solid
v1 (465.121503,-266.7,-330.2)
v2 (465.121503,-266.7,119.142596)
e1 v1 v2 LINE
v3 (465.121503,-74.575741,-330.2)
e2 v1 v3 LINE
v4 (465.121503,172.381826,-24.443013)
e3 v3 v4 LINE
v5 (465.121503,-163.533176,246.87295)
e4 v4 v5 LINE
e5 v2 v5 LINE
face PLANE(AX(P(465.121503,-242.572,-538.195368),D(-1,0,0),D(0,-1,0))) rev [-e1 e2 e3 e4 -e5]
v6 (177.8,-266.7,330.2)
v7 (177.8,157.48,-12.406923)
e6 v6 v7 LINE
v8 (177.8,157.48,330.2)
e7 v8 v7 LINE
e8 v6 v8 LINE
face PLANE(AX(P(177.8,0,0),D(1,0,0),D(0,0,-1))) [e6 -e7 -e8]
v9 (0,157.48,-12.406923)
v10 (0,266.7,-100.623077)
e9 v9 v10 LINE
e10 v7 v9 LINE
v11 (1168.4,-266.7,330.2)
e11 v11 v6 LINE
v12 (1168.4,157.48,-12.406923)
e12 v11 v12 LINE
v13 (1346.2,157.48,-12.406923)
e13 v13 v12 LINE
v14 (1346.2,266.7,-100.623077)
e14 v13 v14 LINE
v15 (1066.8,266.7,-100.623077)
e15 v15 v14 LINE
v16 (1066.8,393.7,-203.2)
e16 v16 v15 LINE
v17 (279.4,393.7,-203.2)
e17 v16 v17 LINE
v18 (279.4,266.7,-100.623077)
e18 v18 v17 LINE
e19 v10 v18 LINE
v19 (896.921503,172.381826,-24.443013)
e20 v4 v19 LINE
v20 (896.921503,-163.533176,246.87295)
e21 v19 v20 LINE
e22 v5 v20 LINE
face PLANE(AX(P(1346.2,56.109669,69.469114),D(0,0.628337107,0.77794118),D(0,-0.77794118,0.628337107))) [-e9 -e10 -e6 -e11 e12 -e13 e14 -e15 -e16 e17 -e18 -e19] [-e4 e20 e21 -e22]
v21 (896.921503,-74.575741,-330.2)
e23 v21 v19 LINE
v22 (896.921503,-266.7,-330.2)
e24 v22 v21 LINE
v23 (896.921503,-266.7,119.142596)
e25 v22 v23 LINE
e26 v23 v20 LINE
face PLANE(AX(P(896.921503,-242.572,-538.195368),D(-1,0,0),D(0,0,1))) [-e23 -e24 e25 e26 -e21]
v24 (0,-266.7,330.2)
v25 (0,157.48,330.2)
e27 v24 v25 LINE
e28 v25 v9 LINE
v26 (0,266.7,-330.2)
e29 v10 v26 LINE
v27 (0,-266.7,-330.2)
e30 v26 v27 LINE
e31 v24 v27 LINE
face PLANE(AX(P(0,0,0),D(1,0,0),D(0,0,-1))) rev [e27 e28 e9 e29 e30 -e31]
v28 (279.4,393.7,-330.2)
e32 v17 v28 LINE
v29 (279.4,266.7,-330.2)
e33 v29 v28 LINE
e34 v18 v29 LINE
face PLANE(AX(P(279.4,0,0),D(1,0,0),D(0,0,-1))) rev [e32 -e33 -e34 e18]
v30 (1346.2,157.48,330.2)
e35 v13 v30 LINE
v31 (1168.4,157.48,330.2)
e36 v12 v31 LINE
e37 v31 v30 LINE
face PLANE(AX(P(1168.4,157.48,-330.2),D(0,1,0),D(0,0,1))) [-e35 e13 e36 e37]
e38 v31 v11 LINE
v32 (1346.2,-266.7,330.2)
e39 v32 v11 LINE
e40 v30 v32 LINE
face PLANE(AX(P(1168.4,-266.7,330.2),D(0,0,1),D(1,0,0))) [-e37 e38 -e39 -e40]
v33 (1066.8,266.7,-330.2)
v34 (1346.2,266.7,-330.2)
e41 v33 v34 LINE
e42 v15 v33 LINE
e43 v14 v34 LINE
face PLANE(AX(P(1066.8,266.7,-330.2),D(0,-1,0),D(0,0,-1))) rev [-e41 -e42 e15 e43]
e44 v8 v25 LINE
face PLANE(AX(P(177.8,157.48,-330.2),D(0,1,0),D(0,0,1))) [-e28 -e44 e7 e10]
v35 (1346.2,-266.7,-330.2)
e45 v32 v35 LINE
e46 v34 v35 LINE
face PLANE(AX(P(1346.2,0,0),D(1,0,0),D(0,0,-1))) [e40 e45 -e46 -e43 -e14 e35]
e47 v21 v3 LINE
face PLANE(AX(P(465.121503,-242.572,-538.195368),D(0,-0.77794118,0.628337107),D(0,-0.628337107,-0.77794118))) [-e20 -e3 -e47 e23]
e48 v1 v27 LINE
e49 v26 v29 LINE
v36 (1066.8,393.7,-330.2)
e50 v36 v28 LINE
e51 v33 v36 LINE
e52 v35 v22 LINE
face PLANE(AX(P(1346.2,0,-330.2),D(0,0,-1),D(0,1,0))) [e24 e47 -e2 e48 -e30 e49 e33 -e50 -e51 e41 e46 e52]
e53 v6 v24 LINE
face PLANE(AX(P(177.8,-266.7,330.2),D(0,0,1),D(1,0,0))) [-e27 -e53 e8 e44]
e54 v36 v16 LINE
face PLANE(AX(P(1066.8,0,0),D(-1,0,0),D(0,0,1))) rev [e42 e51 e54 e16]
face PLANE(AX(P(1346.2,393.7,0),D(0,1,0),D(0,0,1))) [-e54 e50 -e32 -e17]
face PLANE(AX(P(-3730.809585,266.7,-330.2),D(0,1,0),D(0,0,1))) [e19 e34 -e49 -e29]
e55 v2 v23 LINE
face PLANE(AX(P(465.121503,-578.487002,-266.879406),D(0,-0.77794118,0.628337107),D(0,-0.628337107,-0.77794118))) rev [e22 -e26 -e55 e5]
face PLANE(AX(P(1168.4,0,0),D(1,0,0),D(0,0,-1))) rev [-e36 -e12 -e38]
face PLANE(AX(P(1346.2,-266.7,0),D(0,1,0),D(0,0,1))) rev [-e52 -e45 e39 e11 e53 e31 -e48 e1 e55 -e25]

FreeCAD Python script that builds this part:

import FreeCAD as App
import Part
import Sketcher
from FreeCAD import Vector
Q = App.Units.Quantity

doc = App.newDocument("Part")
params = doc.addObject("Spreadsheet::Sheet", "Params")
for row, (alias, value) in enumerate([
    ("sketch1_width", "26 in"),
    ("sketch1_height", "5 in"),
    ("pad1_length", "53 in"),
    ("sketch2_width", "5 in"),
    ("pocket1_length", "11 in"),
    ("pocket2_length", "1441.932396 mm"),
    ("pocket2_length2", "11 in"),
    ("sketch4_height", "26 in"),
    ("sketch4_width", "16.7 in"),
    ("pad2_length", "7 in"),
    ("sketch5_height", "26 in"),
    ("sketch5_width", "16.7 in"),
    ("pad3_length", "7 in"),
    ("sketch6_width", "17 in"),
    ("pocket3_length", "26 in"),
], start=1):
    params.set(f"A{row}", alias)
    params.set(f"B{row}", "=" + value)
    params.setAlias(f"B{row}", alias)

body = doc.addObject("PartDesign::Body", "Body")

sketch1 = doc.addObject("Sketcher::SketchObject", "Sketch")
body.addObject(sketch1)
sketch1.AttachmentSupport = (doc.YZ_Plane, [""])
sketch1.MapMode = "FlatFace"
sketch1.addGeometry(Part.LineSegment(Vector(-266.7, 330.2, 0), Vector(-266.7, -330.2, 0)), False)
sketch1.addGeometry(Part.LineSegment(Vector(-266.7, -330.2, 0), Vector(393.7, -330.2, 0)), False)
sketch1.addGeometry(Part.LineSegment(Vector(393.7, -330.2, 0), Vector(393.7, -203.2, 0)), False)
sketch1.addGeometry(Part.LineSegment(Vector(393.7, -203.2, 0), Vector(-266.7, 330.2, 0)), False)
sketch1.addConstraint(Sketcher.Constraint("Coincident", 0, 2, 1, 1))
sketch1.addConstraint(Sketcher.Constraint("Coincident", 1, 2, 2, 1))
sketch1.addConstraint(Sketcher.Constraint("Coincident", 2, 2, 3, 1))
sketch1.addConstraint(Sketcher.Constraint("Coincident", 3, 2, 0, 1))
sketch1.addConstraint(Sketcher.Constraint("Vertical", 0))
sketch1.addConstraint(Sketcher.Constraint("Horizontal", 1))
sketch1.addConstraint(Sketcher.Constraint("Vertical", 2))
sketch1.addConstraint(Sketcher.Constraint("Equal", 1, 0))
sketch1.addConstraint(Sketcher.Constraint("DistanceX", 1, 1, 1, 2, Q("26 in")))
sketch1.addConstraint(Sketcher.Constraint("DistanceY", 2, 1, 2, 2, Q("5 in")))
sketch1.addConstraint(Sketcher.Constraint("DistanceY", 0, 2, -1, 1, Q("13 in")))
sketch1.addConstraint(Sketcher.Constraint("DistanceX", 0, 2, -1, 1, Q("10.5 in")))
sketch1.setExpression("Constraints[8]", "Params.sketch1_width")
sketch1.setExpression("Constraints[9]", "Params.sketch1_height")
pad1 = doc.addObject("PartDesign::Pad", "Pad")
body.addObject(pad1)
pad1.Profile = sketch1
pad1.setExpression("Length", "Params.pad1_length")

sketch2 = doc.addObject("Sketcher::SketchObject", "Sketch001")
body.addObject(sketch2)
sketch2.AttachmentSupport = (doc.YZ_Plane, [""])
sketch2.MapMode = "FlatFace"
sketch2.AttachmentOffset = App.Placement(Vector(0, 0, 53 * 25.4), App.Rotation())
sketch2.addGeometry(Part.LineSegment(Vector(266.7, -330.2, 0), Vector(393.7, -330.2, 0)), False)
sketch2.addGeometry(Part.LineSegment(Vector(393.7, -330.2, 0), Vector(393.7, -203.2, 0)), False)
sketch2.addGeometry(Part.LineSegment(Vector(393.7, -203.2, 0), Vector(266.7, -100.623077, 0)), False)
sketch2.addGeometry(Part.LineSegment(Vector(266.7, -100.623077, 0), Vector(266.7, -330.2, 0)), False)
sketch2.addConstraint(Sketcher.Constraint("Coincident", 0, 2, 1, 1))
sketch2.addConstraint(Sketcher.Constraint("Coincident", 1, 2, 2, 1))
sketch2.addConstraint(Sketcher.Constraint("Coincident", 2, 2, 3, 1))
sketch2.addConstraint(Sketcher.Constraint("Coincident", 3, 2, 0, 1))
sketch2.addConstraint(Sketcher.Constraint("Horizontal", 0))
sketch2.addConstraint(Sketcher.Constraint("Vertical", 1))
sketch2.addConstraint(Sketcher.Constraint("Vertical", 3))
sketch2.addConstraint(Sketcher.Constraint("Equal", 0, 1))
sketch2.addConstraint(Sketcher.Constraint("DistanceX", 0, 1, 0, 2, Q("5 in")))
sketch2.addConstraint(Sketcher.Constraint("DistanceY", 0, 2, -1, 1, Q("13 in")))
sketch2.addConstraint(Sketcher.Constraint("DistanceX", -1, 1, 0, 2, Q("15.5 in")))
sketch2.addConstraint(Sketcher.Constraint("DistanceY", 3, 2, 3, 1, 229.576923))
sketch2.setExpression("Constraints[8]", "Params.sketch2_width")
pocket1 = doc.addObject("PartDesign::Pocket", "Pocket")
body.addObject(pocket1)
pocket1.Profile = sketch2
pocket1.setExpression("Length", "Params.pocket1_length")

sketch3 = doc.addObject("Sketcher::SketchObject", "Sketch002")
body.addObject(sketch3)
sketch3.AttachmentSupport = (doc.YZ_Plane, [""])
sketch3.MapMode = "FlatFace"
sketch3.addGeometry(Part.LineSegment(Vector(2271.593273, -330.2, 0), Vector(266.7, -330.2, 0)), False)
sketch3.addGeometry(Part.LineSegment(Vector(266.7, -330.2, 0), Vector(266.7, 1777.270196, 0)), False)
sketch3.addGeometry(Part.LineSegment(Vector(266.7, 1777.270196, 0), Vector(2987.839371, 4365.963517, 0)), False)
sketch3.addGeometry(Part.LineSegment(Vector(2987.839371, 4365.963517, 0), Vector(4992.732644, 2258.49332, 0)), False)
sketch3.addGeometry(Part.LineSegment(Vector(4992.732644, 2258.49332, 0), Vector(2271.593273, -330.2, 0)), False)
sketch3.addConstraint(Sketcher.Constraint("Coincident", 0, 2, 1, 1))
sketch3.addConstraint(Sketcher.Constraint("Coincident", 1, 2, 2, 1))
sketch3.addConstraint(Sketcher.Constraint("Coincident", 2, 2, 3, 1))
sketch3.addConstraint(Sketcher.Constraint("Coincident", 3, 2, 4, 1))
sketch3.addConstraint(Sketcher.Constraint("Coincident", 4, 2, 0, 1))
sketch3.addConstraint(Sketcher.Constraint("Horizontal", 0))
sketch3.addConstraint(Sketcher.Constraint("Vertical", 1))
sketch3.addConstraint(Sketcher.Constraint("Perpendicular", 2, 3))
sketch3.addConstraint(Sketcher.Constraint("Perpendicular", 3, 4))
sketch3.addConstraint(Sketcher.Constraint("Equal", 2, 4))
sketch3.addConstraint(Sketcher.Constraint("DistanceY", 0, 2, -1, 1, Q("13 in")))
sketch3.addConstraint(Sketcher.Constraint("DistanceX", -1, 1, 0, 2, Q("10.5 in")))
sketch3.addConstraint(Sketcher.Constraint("Distance", 3, 2908.784568))
sketch3.addConstraint(Sketcher.Constraint("DistanceX", 0, 2, 0, 1, 2004.893273))
sketch3.addConstraint(Sketcher.Constraint("DistanceX", -1, 1, 2, 2, 2987.839371))
pocket2 = doc.addObject("PartDesign::Pocket", "Pocket001")
body.addObject(pocket2)
pocket2.Profile = sketch3
pocket2.Type = "TwoLengths"
pocket2.setExpression("Length", "Params.pocket2_length")
pocket2.setExpression("Length2", "Params.pocket2_length2")

sketch4 = doc.addObject("Sketcher::SketchObject", "Sketch003")
body.addObject(sketch4)
sketch4.AttachmentSupport = (doc.YZ_Plane, [""])
sketch4.MapMode = "FlatFace"
sketch4.AttachmentOffset = App.Placement(Vector(0, 0, 53 * 25.4), App.Rotation())
sketch4.addGeometry(Part.LineSegment(Vector(157.48, 330.2, 0), Vector(-266.7, 330.2, 0)), False)
sketch4.addGeometry(Part.LineSegment(Vector(-266.7, 330.2, 0), Vector(-266.7, -330.2, 0)), False)
sketch4.addGeometry(Part.LineSegment(Vector(-266.7, -330.2, 0), Vector(157.48, -330.2, 0)), False)
sketch4.addGeometry(Part.LineSegment(Vector(157.48, -330.2, 0), Vector(157.48, 330.2, 0)), False)
sketch4.addConstraint(Sketcher.Constraint("Coincident", 0, 2, 1, 1))
sketch4.addConstraint(Sketcher.Constraint("Coincident", 1, 2, 2, 1))
sketch4.addConstraint(Sketcher.Constraint("Coincident", 2, 2, 3, 1))
sketch4.addConstraint(Sketcher.Constraint("Coincident", 3, 2, 0, 1))
sketch4.addConstraint(Sketcher.Constraint("Horizontal", 0))
sketch4.addConstraint(Sketcher.Constraint("Vertical", 1))
sketch4.addConstraint(Sketcher.Constraint("Horizontal", 2))
sketch4.addConstraint(Sketcher.Constraint("Vertical", 3))
sketch4.addConstraint(Sketcher.Constraint("DistanceY", 1, 2, 1, 1, Q("26 in")))
sketch4.addConstraint(Sketcher.Constraint("DistanceX", 0, 2, 0, 1, Q("16.7 in")))
sketch4.addConstraint(Sketcher.Constraint("DistanceY", -1, 1, 0, 2, Q("13 in")))
sketch4.addConstraint(Sketcher.Constraint("DistanceX", 0, 2, -1, 1, Q("10.5 in")))
sketch4.setExpression("Constraints[8]", "Params.sketch4_height")
sketch4.setExpression("Constraints[9]", "Params.sketch4_width")
pad2 = doc.addObject("PartDesign::Pad", "Pad001")
body.addObject(pad2)
pad2.Profile = sketch4
pad2.setExpression("Length", "Params.pad2_length")
pad2.Reversed = True

sketch5 = doc.addObject("Sketcher::SketchObject", "Sketch004")
body.addObject(sketch5)
sketch5.AttachmentSupport = (doc.YZ_Plane, [""])
sketch5.MapMode = "FlatFace"
sketch5.addGeometry(Part.LineSegment(Vector(157.48, -330.2, 0), Vector(-266.7, -330.2, 0)), False)
sketch5.addGeometry(Part.LineSegment(Vector(-266.7, -330.2, 0), Vector(-266.7, 330.2, 0)), False)
sketch5.addGeometry(Part.LineSegment(Vector(-266.7, 330.2, 0), Vector(157.48, 330.2, 0)), False)
sketch5.addGeometry(Part.LineSegment(Vector(157.48, 330.2, 0), Vector(157.48, -330.2, 0)), False)
sketch5.addConstraint(Sketcher.Constraint("Coincident", 0, 2, 1, 1))
sketch5.addConstraint(Sketcher.Constraint("Coincident", 1, 2, 2, 1))
sketch5.addConstraint(Sketcher.Constraint("Coincident", 2, 2, 3, 1))
sketch5.addConstraint(Sketcher.Constraint("Coincident", 3, 2, 0, 1))
sketch5.addConstraint(Sketcher.Constraint("Horizontal", 0))
sketch5.addConstraint(Sketcher.Constraint("Vertical", 1))
sketch5.addConstraint(Sketcher.Constraint("Horizontal", 2))
sketch5.addConstraint(Sketcher.Constraint("Vertical", 3))
sketch5.addConstraint(Sketcher.Constraint("DistanceY", 1, 1, 1, 2, Q("26 in")))
sketch5.addConstraint(Sketcher.Constraint("DistanceX", 0, 2, 0, 1, Q("16.7 in")))
sketch5.addConstraint(Sketcher.Constraint("DistanceY", 0, 2, -1, 1, Q("13 in")))
sketch5.addConstraint(Sketcher.Constraint("DistanceX", 0, 2, -1, 1, Q("10.5 in")))
sketch5.setExpression("Constraints[8]", "Params.sketch5_height")
sketch5.setExpression("Constraints[9]", "Params.sketch5_width")
pad3 = doc.addObject("PartDesign::Pad", "Pad002")
body.addObject(pad3)
pad3.Profile = sketch5
pad3.setExpression("Length", "Params.pad3_length")

sketch6 = doc.addObject("Sketcher::SketchObject", "Sketch005")
body.addObject(sketch6)
sketch6.Placement = App.Placement(Vector(0, 56.109669, 69.469114), App.Rotation(Vector(1, 0, 0), Vector(0, 0.77794118, -0.628337107), Vector(0, 0.628337107, 0.77794118), "ZXY"))
sketch6.addGeometry(Part.LineSegment(Vector(465.121503, 149.461373, 0), Vector(465.121503, -282.338627, 0)), False)
sketch6.addGeometry(Part.LineSegment(Vector(465.121503, -282.338627, 0), Vector(896.921503, -282.338627, 0)), False)
sketch6.addGeometry(Part.LineSegment(Vector(896.921503, -282.338627, 0), Vector(896.921503, 149.461373, 0)), False)
sketch6.addGeometry(Part.LineSegment(Vector(896.921503, 149.461373, 0), Vector(465.121503, 149.461373, 0)), False)
sketch6.addConstraint(Sketcher.Constraint("Coincident", 0, 2, 1, 1))
sketch6.addConstraint(Sketcher.Constraint("Coincident", 1, 2, 2, 1))
sketch6.addConstraint(Sketcher.Constraint("Coincident", 2, 2, 3, 1))
sketch6.addConstraint(Sketcher.Constraint("Coincident", 3, 2, 0, 1))
sketch6.addConstraint(Sketcher.Constraint("Vertical", 0))
sketch6.addConstraint(Sketcher.Constraint("Horizontal", 1))
sketch6.addConstraint(Sketcher.Constraint("Vertical", 2))
sketch6.addConstraint(Sketcher.Constraint("Horizontal", 3))
sketch6.addConstraint(Sketcher.Constraint("Equal", 3, 0))
sketch6.addConstraint(Sketcher.Constraint("DistanceX", 1, 1, 1, 2, Q("17 in")))
sketch6.addConstraint(Sketcher.Constraint("DistanceX", -1, 1, 0, 2, 465.121503))
sketch6.addConstraint(Sketcher.Constraint("DistanceY", 0, 2, -1, 1, 282.338627))
sketch6.setExpression("Constraints[9]", "Params.sketch6_width")
pocket3 = doc.addObject("PartDesign::Pocket", "Pocket002")
body.addObject(pocket3)
pocket3.Profile = sketch6
pocket3.setExpression("Length", "Params.pocket3_length")

doc.recompute()
